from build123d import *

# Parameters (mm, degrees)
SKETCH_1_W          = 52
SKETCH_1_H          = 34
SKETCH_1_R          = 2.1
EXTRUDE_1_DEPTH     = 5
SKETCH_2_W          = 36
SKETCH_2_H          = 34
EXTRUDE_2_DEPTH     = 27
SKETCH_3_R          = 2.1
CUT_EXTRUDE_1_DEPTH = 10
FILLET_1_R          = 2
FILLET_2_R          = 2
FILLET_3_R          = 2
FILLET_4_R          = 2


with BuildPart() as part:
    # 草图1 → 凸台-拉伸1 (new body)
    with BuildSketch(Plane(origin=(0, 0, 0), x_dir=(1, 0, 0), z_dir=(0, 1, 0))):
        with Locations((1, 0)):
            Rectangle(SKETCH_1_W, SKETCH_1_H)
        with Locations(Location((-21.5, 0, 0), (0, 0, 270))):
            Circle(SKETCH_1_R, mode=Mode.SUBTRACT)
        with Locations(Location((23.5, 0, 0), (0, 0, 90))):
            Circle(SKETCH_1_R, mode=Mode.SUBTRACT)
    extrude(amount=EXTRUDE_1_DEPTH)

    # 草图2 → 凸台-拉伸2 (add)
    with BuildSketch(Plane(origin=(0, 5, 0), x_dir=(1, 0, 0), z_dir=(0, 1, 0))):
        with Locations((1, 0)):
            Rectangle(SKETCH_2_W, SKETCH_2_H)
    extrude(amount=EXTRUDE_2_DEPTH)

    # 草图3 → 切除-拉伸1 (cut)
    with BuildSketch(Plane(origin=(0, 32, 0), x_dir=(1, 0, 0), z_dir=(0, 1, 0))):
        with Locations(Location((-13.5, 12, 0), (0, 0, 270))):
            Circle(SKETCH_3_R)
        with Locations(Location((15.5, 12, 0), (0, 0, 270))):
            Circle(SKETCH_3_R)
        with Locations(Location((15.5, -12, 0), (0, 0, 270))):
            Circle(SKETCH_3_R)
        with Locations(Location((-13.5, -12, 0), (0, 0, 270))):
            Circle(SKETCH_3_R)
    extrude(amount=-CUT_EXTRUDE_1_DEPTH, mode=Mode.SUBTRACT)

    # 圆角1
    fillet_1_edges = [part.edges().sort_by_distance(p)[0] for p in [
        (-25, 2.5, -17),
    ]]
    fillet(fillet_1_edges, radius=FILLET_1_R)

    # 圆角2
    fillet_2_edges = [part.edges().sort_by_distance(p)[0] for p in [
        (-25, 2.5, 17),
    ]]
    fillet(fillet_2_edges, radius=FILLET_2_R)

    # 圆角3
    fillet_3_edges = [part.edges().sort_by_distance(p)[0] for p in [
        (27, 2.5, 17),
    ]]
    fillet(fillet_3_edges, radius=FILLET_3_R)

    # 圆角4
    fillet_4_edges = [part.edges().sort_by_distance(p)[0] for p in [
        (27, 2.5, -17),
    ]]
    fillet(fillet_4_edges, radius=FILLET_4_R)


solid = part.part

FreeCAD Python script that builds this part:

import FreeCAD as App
import Part
import Sketcher
Q = App.Units.Quantity


def edges_at(feature, points):
    """Names of the edges that pass closest to the given points."""
    edges = feature.Shape.Edges
    near = lambda p: min(range(len(edges)), key=lambda i: edges[i].distToShape(Part.Vertex(*p))[0])
    return sorted({f"Edge{near(p) + 1}" for p in points})

doc = App.newDocument("Part")
params = doc.addObject("Spreadsheet::Sheet", "Params")
for row, (alias, value) in enumerate([
    ("sketch1_diameter", "4.2 mm"),
    ("sketch1_width", "52 mm"),
    ("sketch1_height", "34 mm"),
    ("pad1_length", "5 mm"),
    ("sketch2_width", "36 mm"),
    ("sketch2_height", "34 mm"),
    ("pad2_length", "27 mm"),
    ("sketch3_diameter", "4.2 mm"),
    ("pocket1_length", "10 mm"),
    ("fillet_radius", "2 mm"),
    ("fillet2_radius", "2 mm"),
    ("fillet3_radius", "2 mm"),
    ("fillet4_radius", "2 mm"),
], start=1):
    params.set(f"A{row}", alias)
    params.set(f"B{row}", "=" + value)
    params.setAlias(f"B{row}", alias)

body = doc.addObject("PartDesign::Body", "Body")

sketch1 = body.newObject("Sketcher::SketchObject", "Sketch")
sketch1.AttachmentSupport = (doc.getObject("XZ_Plane"), [""])
sketch1.MapMode = "FlatFace"
sketch1.addGeometry([
    Part.LineSegment(App.Vector(-25, -17, 0), App.Vector(-25, 17, 0)),
    Part.LineSegment(App.Vector(-25, 17, 0), App.Vector(27, 17, 0)),
    Part.LineSegment(App.Vector(27, 17, 0), App.Vector(27, -17, 0)),
    Part.LineSegment(App.Vector(27, -17, 0), App.Vector(-25, -17, 0)),
    Part.Circle(App.Vector(-21.5, 0, 0), App.Vector(0, 0, 1), 2.1),
    Part.Circle(App.Vector(23.5, 0, 0), App.Vector(0, 0, 1), 2.1),
], False)
sketch1.addConstraint([
    Sketcher.Constraint("Coincident", 0, 2, 1, 1),
    Sketcher.Constraint("Coincident", 1, 2, 2, 1),
    Sketcher.Constraint("Coincident", 2, 2, 3, 1),
    Sketcher.Constraint("Coincident", 3, 2, 0, 1),
    Sketcher.Constraint("Vertical", 0),
    Sketcher.Constraint("Horizontal", 1),
    Sketcher.Constraint("Vertical", 2),
    Sketcher.Constraint("Horizontal", 3),
    Sketcher.Constraint("Equal", 4, 5),
    Sketcher.Constraint("PointOnObject", 4, 3, -1),
    Sketcher.Constraint("PointOnObject", 5, 3, -1),
    Sketcher.Constraint("Diameter", 4, Q("4.2 mm")),
    Sketcher.Constraint("DistanceX", 1, 1, 1, 2, Q("52 mm")),
    Sketcher.Constraint("DistanceY", 0, 1, 0, 2, Q("34 mm")),
    Sketcher.Constraint("DistanceX", 0, 2, -1, 1, Q("25 mm")),
    Sketcher.Constraint("DistanceY", -1, 1, 0, 2, Q("17 mm")),
    Sketcher.Constraint("DistanceX", 4, 3, 5, 3, Q("45 mm")),
    Sketcher.Constraint("DistanceX", 4, 3, -1, 1, Q("21.5 mm")),
])
sketch1.setExpression("Constraints[11]", "Params.sketch1_diameter")
sketch1.setExpression("Constraints[12]", "Params.sketch1_width")
sketch1.setExpression("Constraints[13]", "Params.sketch1_height")
pad1 = body.newObject("PartDesign::Pad", "Pad")
pad1.Profile = sketch1
pad1.setExpression("Length", "Params.pad1_length")
pad1.Reversed = True

sketch2 = body.newObject("Sketcher::SketchObject", "Sketch001")
sketch2.AttachmentSupport = (doc.getObject("XZ_Plane"), [""])
sketch2.MapMode = "FlatFace"
sketch2.AttachmentOffset = App.Placement(App.Vector(0, 0, -5), App.Rotation())
sketch2.addGeometry([
    Part.LineSegment(App.Vector(-17, -17, 0), App.Vector(-17, 17, 0)),
    Part.LineSegment(App.Vector(-17, 17, 0), App.Vector(19, 17, 0)),
    Part.LineSegment(App.Vector(19, 17, 0), App.Vector(19, -17, 0)),
    Part.LineSegment(App.Vector(19, -17, 0), App.Vector(-17, -17, 0)),
], False)
sketch2.addConstraint([
    Sketcher.Constraint("Coincident", 0, 2, 1, 1),
    Sketcher.Constraint("Coincident", 1, 2, 2, 1),
    Sketcher.Constraint("Coincident", 2, 2, 3, 1),
    Sketcher.Constraint("Coincident", 3, 2, 0, 1),
    Sketcher.Constraint("Vertical", 0),
    Sketcher.Constraint("Horizontal", 1),
    Sketcher.Constraint("Vertical", 2),
    Sketcher.Constraint("Horizontal", 3),
    Sketcher.Constraint("DistanceX", 1, 1, 1, 2, Q("36 mm")),
    Sketcher.Constraint("DistanceY", 0, 1, 0, 2, Q("34 mm")),
    Sketcher.Constraint("DistanceX", 0, 2, -1, 1, Q("17 mm")),
    Sketcher.Constraint("DistanceY", -1, 1, 0, 2, Q("17 mm")),
])
sketch2.setExpression("Constraints[8]", "Params.sketch2_width")
sketch2.setExpression("Constraints[9]", "Params.sketch2_height")
pad2 = body.newObject("PartDesign::Pad", "Pad001")
pad2.Profile = sketch2
pad2.setExpression("Length", "Params.pad2_length")
pad2.Reversed = True

sketch3 = body.newObject("Sketcher::SketchObject", "Sketch002")
sketch3.AttachmentSupport = (doc.getObject("XZ_Plane"), [""])
sketch3.MapMode = "FlatFace"
sketch3.AttachmentOffset = App.Placement(App.Vector(0, 0, -32), App.Rotation())
sketch3.addGeometry([
    Part.Circle(App.Vector(-13.5, -12, 0), App.Vector(0, 0, 1), 2.1),
    Part.Circle(App.Vector(15.5, -12, 0), App.Vector(0, 0, 1), 2.1),
    Part.Circle(App.Vector(15.5, 12, 0), App.Vector(0, 0, 1), 2.1),
    Part.Circle(App.Vector(-13.5, 12, 0), App.Vector(0, 0, 1), 2.1),
], False)
sketch3.addConstraint([
    Sketcher.Constraint("Equal", 0, 1),
    Sketcher.Constraint("Equal", 1, 2),
    Sketcher.Constraint("Equal", 2, 3),
    Sketcher.Constraint("Symmetric", 1, 3, 2, 3, -1),
    Sketcher.Constraint("Symmetric", 0, 3, 3, 3, -1),
    Sketcher.Constraint("Horizontal", 0, 3, 1, 3),
    Sketcher.Constraint("Diameter", 0, Q("4.2 mm")),
    Sketcher.Constraint("DistanceY", 0, 3, -1, 1, Q("12 mm")),
    Sketcher.Constraint("DistanceX", 0, 3, 1, 3, Q("29 mm")),
    Sketcher.Constraint("DistanceX", 0, 3, -1, 1, Q("13.5 mm")),
])
sketch3.setExpression("Constraints[6]", "Params.sketch3_diameter")
pocket1 = body.newObject("PartDesign::Pocket", "Pocket")
pocket1.Profile = sketch3
pocket1.setExpression("Length", "Params.pocket1_length")
pocket1.Reversed = True
doc.recompute()

fillet = body.newObject("PartDesign::Fillet", "Fillet")
fillet.Base = (pocket1, edges_at(pocket1, [(-25, 2.5, -17)]))
fillet.setExpression("Radius", "Params.fillet_radius")
doc.recompute()

fillet2 = body.newObject("PartDesign::Fillet", "Fillet001")
fillet2.Base = (fillet, edges_at(fillet, [(-25, 2.5, 17)]))
fillet2.setExpression("Radius", "Params.fillet2_radius")
doc.recompute()

fillet3 = body.newObject("PartDesign::Fillet", "Fillet002")
fillet3.Base = (fillet2, edges_at(fillet2, [(27, 2.5, 17)]))
fillet3.setExpression("Radius", "Params.fillet3_radius")
doc.recompute()

fillet4 = body.newObject("PartDesign::Fillet", "Fillet003")
fillet4.Base = (fillet3, edges_at(fillet3, [(27, 2.5, -17)]))
fillet4.setExpression("Radius", "Params.fillet4_radius")

doc.recompute()
